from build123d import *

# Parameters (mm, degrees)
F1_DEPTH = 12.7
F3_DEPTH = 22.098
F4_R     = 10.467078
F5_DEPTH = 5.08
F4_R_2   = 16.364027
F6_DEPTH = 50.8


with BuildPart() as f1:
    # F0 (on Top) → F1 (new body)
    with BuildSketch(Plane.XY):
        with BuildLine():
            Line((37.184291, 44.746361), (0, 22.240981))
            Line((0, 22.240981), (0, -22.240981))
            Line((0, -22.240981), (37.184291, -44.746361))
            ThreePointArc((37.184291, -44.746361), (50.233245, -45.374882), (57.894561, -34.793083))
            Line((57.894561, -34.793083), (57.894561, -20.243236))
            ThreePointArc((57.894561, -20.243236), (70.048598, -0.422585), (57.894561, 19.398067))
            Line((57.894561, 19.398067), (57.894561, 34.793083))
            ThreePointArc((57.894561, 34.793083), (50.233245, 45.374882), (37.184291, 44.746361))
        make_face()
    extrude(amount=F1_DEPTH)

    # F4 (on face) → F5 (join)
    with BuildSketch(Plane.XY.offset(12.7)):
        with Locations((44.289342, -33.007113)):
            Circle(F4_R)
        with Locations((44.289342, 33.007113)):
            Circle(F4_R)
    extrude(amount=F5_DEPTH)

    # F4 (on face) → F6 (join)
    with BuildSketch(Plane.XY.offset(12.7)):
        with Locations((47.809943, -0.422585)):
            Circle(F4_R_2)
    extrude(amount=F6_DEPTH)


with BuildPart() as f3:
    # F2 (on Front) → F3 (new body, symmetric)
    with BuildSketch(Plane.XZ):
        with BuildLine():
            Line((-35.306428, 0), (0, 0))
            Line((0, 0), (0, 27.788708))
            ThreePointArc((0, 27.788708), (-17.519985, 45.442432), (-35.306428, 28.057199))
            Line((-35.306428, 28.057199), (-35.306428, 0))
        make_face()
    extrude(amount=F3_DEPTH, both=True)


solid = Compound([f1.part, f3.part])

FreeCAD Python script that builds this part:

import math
import FreeCAD as App
import Part
import Sketcher
from FreeCAD import Vector
Q = App.Units.Quantity

doc = App.newDocument("Part")
body = doc.addObject("PartDesign::Body", "Body")

# Sketch on XY plane
sketch1 = doc.addObject("Sketcher::SketchObject", "Sketch")
body.addObject(sketch1)
sketch1.AttachmentSupport = (doc.XY_Plane, [""])
sketch1.MapMode = "FlatFace"
sketch1.addGeometry(Part.LineSegment(Vector(37, 45, 0), Vector(0, 22, 0)), False)
sketch1.addGeometry(Part.LineSegment(Vector(0, 22, 0), Vector(0, -22, 0)), False)
sketch1.addGeometry(Part.LineSegment(Vector(0, -22, 0), Vector(37, -45, 0)), False)
sketch1.addGeometry(Part.ArcOfCircle(Part.Circle(Vector(44, -33, 0), Vector(0, 0, 1), 14), math.radians(-121), math.radians(-7)), False)
sketch1.addGeometry(Part.LineSegment(Vector(58, -35, 0), Vector(58, -20, 0)), False)
sketch1.addGeometry(Part.ArcOfCircle(Part.Circle(Vector(48, 0, 0), Vector(0, 0, 1), 22), math.radians(-63), math.radians(63)), False)
sketch1.addGeometry(Part.LineSegment(Vector(58, 19, 0), Vector(58, 35, 0)), False)
sketch1.addGeometry(Part.ArcOfCircle(Part.Circle(Vector(44, 33, 0), Vector(0, 0, 1), 14), math.radians(7), math.radians(121)), False)
sketch1.addConstraint(Sketcher.Constraint("Coincident", 0, 2, 1, 1))
sketch1.addConstraint(Sketcher.Constraint("Coincident", 1, 2, 2, 1))
sketch1.addConstraint(Sketcher.Constraint("Tangent", 2, 2, 3, 1))
sketch1.addConstraint(Sketcher.Constraint("Coincident", 3, 2, 4, 1))
sketch1.addConstraint(Sketcher.Constraint("Coincident", 4, 2, 5, 1))
sketch1.addConstraint(Sketcher.Constraint("Coincident", 5, 2, 6, 1))
sketch1.addConstraint(Sketcher.Constraint("Coincident", 6, 2, 7, 1))
sketch1.addConstraint(Sketcher.Constraint("Tangent", 7, 2, 0, 1))
sketch1.addConstraint(Sketcher.Constraint("Vertical", 1))
sketch1.addConstraint(Sketcher.Constraint("Vertical", 4))
sketch1.addConstraint(Sketcher.Constraint("Vertical", 6))
sketch1.addConstraint(Sketcher.Constraint("Equal", 3, 7))
sketch1.addConstraint(Sketcher.Constraint("Symmetric", 0, 2, 1, 2, -1, 1))
sketch1.addConstraint(Sketcher.Constraint("Symmetric", 3, 3, 7, 3, -1))
sketch1.addConstraint(Sketcher.Constraint("Vertical", 4, 2, 5, 2))
sketch1.addConstraint(Sketcher.Constraint("Radius", 3, Q("13.721941 mm")))
sketch1.addConstraint(Sketcher.Constraint("Radius", 5, Q("22.238654 mm")))
sketch1.addConstraint(Sketcher.Constraint("DistanceY", 5, 3, 7, 3, Q("33.429698 mm")))
sketch1.addConstraint(Sketcher.Constraint("DistanceY", 3, 2, 5, 3, Q("34.370499 mm")))
sketch1.addConstraint(Sketcher.Constraint("Distance", 0, Q("43.46451 mm")))
sketch1.addConstraint(Sketcher.Constraint("DistanceY", 1, 2, 1, 1, Q("44.481962 mm")))
sketch1.addConstraint(Sketcher.Constraint("DistanceY", 4, 1, 4, 2, Q("14.549847 mm")))
sketch1.addConstraint(Sketcher.Constraint("DistanceY", 6, 1, 6, 2, Q("15.395016 mm")))
pad1 = doc.addObject("PartDesign::Pad", "Pad")
body.addObject(pad1)
pad1.Profile = sketch1
pad1.Length = Q("0.5 in")

# Sketch on XY plane
sketch2 = doc.addObject("Sketcher::SketchObject", "Sketch001")
body.addObject(sketch2)
sketch2.AttachmentSupport = (doc.XY_Plane, [""])
sketch2.MapMode = "FlatFace"
sketch2.AttachmentOffset = App.Placement(Vector(0, 0, 0.5 * 25.4), App.Rotation())
sketch2.addGeometry(Part.Circle(Vector(44, -33, 0), Vector(0, 0, 1), 10), False)
sketch2.addGeometry(Part.Circle(Vector(44, 33, 0), Vector(0, 0, 1), 10), False)
sketch2.addConstraint(Sketcher.Constraint("Equal", 0, 1))
sketch2.addConstraint(Sketcher.Constraint("Symmetric", 0, 3, 1, 3, -1))
sketch2.addConstraint(Sketcher.Constraint("Diameter", 0, Q("20.934156 mm")))
sketch2.addConstraint(Sketcher.Constraint("DistanceX", -1, 1, 0, 3, Q("44.289342 mm")))
sketch2.addConstraint(Sketcher.Constraint("DistanceY", 0, 3, -1, 1, Q("33.007113 mm")))
pad2 = doc.addObject("PartDesign::Pad", "Pad001")
body.addObject(pad2)
pad2.Profile = sketch2
pad2.Length = Q("0.2 in")

# Sketch on XY plane
sketch3 = doc.addObject("Sketcher::SketchObject", "Sketch002")
body.addObject(sketch3)
sketch3.AttachmentSupport = (doc.XY_Plane, [""])
sketch3.MapMode = "FlatFace"
sketch3.AttachmentOffset = App.Placement(Vector(0, 0, 0.5 * 25.4), App.Rotation())
sketch3.addGeometry(Part.Circle(Vector(48, 0, 0), Vector(0, 0, 1), 16), False)
sketch3.addConstraint(Sketcher.Constraint("Diameter", 0, Q("32.728054 mm")))
sketch3.addConstraint(Sketcher.Constraint("DistanceX", -1, 1, 0, 3, Q("47.809943 mm")))
sketch3.addConstraint(Sketcher.Constraint("DistanceY", 0, 3, -1, 1, Q("0.422585 mm")))
pad3 = doc.addObject("PartDesign::Pad", "Pad002")
body.addObject(pad3)
pad3.Profile = sketch3
pad3.Length = Q("2 in")
body2 = doc.addObject("PartDesign::Body", "Body001")

# Sketch on XZ plane
sketch4 = doc.addObject("Sketcher::SketchObject", "Sketch003")
body2.addObject(sketch4)
sketch4.AttachmentSupport = (doc.getObject("XZ_Plane001"), [""])
sketch4.MapMode = "FlatFace"
sketch4.addGeometry(Part.LineSegment(Vector(-35, 0, 0), Vector(0, 0, 0)), False)
sketch4.addGeometry(Part.LineSegment(Vector(0, 0, 0), Vector(0, 28, 0)), False)
sketch4.addGeometry(Part.ArcOfCircle(Part.Circle(Vector(-18, 28, 0), Vector(0, 0, 1), 18), math.radians(0), math.radians(179)), False)
sketch4.addGeometry(Part.LineSegment(Vector(-35, 28, 0), Vector(-35, 0, 0)), False)
sketch4.addConstraint(Sketcher.Constraint("Coincident", 0, 2, 1, 1))
sketch4.addConstraint(Sketcher.Constraint("Tangent", 1, 2, 2, 1))
sketch4.addConstraint(Sketcher.Constraint("Coincident", 2, 2, 3, 1))
sketch4.addConstraint(Sketcher.Constraint("Coincident", 3, 2, 0, 1))
sketch4.addConstraint(Sketcher.Constraint("Horizontal", 0))
sketch4.addConstraint(Sketcher.Constraint("Vertical", 1))
sketch4.addConstraint(Sketcher.Constraint("Vertical", 3))
sketch4.addConstraint(Sketcher.Constraint("Coincident", 0, 2, -1, 1))
sketch4.addConstraint(Sketcher.Constraint("DistanceY", 3, 2, 3, 1, Q("28.057199 mm")))
sketch4.addConstraint(Sketcher.Constraint("Radius", 2, Q("17.654235 mm")))
sketch4.addConstraint(Sketcher.Constraint("DistanceY", 1, 1, 1, 2, Q("27.788708 mm")))
pad4 = doc.addObject("PartDesign::Pad", "Pad003")
body2.addObject(pad4)
pad4.Profile = sketch4
pad4.Length = Q("1.74 in")
pad4.Midplane = True

doc.recompute()
